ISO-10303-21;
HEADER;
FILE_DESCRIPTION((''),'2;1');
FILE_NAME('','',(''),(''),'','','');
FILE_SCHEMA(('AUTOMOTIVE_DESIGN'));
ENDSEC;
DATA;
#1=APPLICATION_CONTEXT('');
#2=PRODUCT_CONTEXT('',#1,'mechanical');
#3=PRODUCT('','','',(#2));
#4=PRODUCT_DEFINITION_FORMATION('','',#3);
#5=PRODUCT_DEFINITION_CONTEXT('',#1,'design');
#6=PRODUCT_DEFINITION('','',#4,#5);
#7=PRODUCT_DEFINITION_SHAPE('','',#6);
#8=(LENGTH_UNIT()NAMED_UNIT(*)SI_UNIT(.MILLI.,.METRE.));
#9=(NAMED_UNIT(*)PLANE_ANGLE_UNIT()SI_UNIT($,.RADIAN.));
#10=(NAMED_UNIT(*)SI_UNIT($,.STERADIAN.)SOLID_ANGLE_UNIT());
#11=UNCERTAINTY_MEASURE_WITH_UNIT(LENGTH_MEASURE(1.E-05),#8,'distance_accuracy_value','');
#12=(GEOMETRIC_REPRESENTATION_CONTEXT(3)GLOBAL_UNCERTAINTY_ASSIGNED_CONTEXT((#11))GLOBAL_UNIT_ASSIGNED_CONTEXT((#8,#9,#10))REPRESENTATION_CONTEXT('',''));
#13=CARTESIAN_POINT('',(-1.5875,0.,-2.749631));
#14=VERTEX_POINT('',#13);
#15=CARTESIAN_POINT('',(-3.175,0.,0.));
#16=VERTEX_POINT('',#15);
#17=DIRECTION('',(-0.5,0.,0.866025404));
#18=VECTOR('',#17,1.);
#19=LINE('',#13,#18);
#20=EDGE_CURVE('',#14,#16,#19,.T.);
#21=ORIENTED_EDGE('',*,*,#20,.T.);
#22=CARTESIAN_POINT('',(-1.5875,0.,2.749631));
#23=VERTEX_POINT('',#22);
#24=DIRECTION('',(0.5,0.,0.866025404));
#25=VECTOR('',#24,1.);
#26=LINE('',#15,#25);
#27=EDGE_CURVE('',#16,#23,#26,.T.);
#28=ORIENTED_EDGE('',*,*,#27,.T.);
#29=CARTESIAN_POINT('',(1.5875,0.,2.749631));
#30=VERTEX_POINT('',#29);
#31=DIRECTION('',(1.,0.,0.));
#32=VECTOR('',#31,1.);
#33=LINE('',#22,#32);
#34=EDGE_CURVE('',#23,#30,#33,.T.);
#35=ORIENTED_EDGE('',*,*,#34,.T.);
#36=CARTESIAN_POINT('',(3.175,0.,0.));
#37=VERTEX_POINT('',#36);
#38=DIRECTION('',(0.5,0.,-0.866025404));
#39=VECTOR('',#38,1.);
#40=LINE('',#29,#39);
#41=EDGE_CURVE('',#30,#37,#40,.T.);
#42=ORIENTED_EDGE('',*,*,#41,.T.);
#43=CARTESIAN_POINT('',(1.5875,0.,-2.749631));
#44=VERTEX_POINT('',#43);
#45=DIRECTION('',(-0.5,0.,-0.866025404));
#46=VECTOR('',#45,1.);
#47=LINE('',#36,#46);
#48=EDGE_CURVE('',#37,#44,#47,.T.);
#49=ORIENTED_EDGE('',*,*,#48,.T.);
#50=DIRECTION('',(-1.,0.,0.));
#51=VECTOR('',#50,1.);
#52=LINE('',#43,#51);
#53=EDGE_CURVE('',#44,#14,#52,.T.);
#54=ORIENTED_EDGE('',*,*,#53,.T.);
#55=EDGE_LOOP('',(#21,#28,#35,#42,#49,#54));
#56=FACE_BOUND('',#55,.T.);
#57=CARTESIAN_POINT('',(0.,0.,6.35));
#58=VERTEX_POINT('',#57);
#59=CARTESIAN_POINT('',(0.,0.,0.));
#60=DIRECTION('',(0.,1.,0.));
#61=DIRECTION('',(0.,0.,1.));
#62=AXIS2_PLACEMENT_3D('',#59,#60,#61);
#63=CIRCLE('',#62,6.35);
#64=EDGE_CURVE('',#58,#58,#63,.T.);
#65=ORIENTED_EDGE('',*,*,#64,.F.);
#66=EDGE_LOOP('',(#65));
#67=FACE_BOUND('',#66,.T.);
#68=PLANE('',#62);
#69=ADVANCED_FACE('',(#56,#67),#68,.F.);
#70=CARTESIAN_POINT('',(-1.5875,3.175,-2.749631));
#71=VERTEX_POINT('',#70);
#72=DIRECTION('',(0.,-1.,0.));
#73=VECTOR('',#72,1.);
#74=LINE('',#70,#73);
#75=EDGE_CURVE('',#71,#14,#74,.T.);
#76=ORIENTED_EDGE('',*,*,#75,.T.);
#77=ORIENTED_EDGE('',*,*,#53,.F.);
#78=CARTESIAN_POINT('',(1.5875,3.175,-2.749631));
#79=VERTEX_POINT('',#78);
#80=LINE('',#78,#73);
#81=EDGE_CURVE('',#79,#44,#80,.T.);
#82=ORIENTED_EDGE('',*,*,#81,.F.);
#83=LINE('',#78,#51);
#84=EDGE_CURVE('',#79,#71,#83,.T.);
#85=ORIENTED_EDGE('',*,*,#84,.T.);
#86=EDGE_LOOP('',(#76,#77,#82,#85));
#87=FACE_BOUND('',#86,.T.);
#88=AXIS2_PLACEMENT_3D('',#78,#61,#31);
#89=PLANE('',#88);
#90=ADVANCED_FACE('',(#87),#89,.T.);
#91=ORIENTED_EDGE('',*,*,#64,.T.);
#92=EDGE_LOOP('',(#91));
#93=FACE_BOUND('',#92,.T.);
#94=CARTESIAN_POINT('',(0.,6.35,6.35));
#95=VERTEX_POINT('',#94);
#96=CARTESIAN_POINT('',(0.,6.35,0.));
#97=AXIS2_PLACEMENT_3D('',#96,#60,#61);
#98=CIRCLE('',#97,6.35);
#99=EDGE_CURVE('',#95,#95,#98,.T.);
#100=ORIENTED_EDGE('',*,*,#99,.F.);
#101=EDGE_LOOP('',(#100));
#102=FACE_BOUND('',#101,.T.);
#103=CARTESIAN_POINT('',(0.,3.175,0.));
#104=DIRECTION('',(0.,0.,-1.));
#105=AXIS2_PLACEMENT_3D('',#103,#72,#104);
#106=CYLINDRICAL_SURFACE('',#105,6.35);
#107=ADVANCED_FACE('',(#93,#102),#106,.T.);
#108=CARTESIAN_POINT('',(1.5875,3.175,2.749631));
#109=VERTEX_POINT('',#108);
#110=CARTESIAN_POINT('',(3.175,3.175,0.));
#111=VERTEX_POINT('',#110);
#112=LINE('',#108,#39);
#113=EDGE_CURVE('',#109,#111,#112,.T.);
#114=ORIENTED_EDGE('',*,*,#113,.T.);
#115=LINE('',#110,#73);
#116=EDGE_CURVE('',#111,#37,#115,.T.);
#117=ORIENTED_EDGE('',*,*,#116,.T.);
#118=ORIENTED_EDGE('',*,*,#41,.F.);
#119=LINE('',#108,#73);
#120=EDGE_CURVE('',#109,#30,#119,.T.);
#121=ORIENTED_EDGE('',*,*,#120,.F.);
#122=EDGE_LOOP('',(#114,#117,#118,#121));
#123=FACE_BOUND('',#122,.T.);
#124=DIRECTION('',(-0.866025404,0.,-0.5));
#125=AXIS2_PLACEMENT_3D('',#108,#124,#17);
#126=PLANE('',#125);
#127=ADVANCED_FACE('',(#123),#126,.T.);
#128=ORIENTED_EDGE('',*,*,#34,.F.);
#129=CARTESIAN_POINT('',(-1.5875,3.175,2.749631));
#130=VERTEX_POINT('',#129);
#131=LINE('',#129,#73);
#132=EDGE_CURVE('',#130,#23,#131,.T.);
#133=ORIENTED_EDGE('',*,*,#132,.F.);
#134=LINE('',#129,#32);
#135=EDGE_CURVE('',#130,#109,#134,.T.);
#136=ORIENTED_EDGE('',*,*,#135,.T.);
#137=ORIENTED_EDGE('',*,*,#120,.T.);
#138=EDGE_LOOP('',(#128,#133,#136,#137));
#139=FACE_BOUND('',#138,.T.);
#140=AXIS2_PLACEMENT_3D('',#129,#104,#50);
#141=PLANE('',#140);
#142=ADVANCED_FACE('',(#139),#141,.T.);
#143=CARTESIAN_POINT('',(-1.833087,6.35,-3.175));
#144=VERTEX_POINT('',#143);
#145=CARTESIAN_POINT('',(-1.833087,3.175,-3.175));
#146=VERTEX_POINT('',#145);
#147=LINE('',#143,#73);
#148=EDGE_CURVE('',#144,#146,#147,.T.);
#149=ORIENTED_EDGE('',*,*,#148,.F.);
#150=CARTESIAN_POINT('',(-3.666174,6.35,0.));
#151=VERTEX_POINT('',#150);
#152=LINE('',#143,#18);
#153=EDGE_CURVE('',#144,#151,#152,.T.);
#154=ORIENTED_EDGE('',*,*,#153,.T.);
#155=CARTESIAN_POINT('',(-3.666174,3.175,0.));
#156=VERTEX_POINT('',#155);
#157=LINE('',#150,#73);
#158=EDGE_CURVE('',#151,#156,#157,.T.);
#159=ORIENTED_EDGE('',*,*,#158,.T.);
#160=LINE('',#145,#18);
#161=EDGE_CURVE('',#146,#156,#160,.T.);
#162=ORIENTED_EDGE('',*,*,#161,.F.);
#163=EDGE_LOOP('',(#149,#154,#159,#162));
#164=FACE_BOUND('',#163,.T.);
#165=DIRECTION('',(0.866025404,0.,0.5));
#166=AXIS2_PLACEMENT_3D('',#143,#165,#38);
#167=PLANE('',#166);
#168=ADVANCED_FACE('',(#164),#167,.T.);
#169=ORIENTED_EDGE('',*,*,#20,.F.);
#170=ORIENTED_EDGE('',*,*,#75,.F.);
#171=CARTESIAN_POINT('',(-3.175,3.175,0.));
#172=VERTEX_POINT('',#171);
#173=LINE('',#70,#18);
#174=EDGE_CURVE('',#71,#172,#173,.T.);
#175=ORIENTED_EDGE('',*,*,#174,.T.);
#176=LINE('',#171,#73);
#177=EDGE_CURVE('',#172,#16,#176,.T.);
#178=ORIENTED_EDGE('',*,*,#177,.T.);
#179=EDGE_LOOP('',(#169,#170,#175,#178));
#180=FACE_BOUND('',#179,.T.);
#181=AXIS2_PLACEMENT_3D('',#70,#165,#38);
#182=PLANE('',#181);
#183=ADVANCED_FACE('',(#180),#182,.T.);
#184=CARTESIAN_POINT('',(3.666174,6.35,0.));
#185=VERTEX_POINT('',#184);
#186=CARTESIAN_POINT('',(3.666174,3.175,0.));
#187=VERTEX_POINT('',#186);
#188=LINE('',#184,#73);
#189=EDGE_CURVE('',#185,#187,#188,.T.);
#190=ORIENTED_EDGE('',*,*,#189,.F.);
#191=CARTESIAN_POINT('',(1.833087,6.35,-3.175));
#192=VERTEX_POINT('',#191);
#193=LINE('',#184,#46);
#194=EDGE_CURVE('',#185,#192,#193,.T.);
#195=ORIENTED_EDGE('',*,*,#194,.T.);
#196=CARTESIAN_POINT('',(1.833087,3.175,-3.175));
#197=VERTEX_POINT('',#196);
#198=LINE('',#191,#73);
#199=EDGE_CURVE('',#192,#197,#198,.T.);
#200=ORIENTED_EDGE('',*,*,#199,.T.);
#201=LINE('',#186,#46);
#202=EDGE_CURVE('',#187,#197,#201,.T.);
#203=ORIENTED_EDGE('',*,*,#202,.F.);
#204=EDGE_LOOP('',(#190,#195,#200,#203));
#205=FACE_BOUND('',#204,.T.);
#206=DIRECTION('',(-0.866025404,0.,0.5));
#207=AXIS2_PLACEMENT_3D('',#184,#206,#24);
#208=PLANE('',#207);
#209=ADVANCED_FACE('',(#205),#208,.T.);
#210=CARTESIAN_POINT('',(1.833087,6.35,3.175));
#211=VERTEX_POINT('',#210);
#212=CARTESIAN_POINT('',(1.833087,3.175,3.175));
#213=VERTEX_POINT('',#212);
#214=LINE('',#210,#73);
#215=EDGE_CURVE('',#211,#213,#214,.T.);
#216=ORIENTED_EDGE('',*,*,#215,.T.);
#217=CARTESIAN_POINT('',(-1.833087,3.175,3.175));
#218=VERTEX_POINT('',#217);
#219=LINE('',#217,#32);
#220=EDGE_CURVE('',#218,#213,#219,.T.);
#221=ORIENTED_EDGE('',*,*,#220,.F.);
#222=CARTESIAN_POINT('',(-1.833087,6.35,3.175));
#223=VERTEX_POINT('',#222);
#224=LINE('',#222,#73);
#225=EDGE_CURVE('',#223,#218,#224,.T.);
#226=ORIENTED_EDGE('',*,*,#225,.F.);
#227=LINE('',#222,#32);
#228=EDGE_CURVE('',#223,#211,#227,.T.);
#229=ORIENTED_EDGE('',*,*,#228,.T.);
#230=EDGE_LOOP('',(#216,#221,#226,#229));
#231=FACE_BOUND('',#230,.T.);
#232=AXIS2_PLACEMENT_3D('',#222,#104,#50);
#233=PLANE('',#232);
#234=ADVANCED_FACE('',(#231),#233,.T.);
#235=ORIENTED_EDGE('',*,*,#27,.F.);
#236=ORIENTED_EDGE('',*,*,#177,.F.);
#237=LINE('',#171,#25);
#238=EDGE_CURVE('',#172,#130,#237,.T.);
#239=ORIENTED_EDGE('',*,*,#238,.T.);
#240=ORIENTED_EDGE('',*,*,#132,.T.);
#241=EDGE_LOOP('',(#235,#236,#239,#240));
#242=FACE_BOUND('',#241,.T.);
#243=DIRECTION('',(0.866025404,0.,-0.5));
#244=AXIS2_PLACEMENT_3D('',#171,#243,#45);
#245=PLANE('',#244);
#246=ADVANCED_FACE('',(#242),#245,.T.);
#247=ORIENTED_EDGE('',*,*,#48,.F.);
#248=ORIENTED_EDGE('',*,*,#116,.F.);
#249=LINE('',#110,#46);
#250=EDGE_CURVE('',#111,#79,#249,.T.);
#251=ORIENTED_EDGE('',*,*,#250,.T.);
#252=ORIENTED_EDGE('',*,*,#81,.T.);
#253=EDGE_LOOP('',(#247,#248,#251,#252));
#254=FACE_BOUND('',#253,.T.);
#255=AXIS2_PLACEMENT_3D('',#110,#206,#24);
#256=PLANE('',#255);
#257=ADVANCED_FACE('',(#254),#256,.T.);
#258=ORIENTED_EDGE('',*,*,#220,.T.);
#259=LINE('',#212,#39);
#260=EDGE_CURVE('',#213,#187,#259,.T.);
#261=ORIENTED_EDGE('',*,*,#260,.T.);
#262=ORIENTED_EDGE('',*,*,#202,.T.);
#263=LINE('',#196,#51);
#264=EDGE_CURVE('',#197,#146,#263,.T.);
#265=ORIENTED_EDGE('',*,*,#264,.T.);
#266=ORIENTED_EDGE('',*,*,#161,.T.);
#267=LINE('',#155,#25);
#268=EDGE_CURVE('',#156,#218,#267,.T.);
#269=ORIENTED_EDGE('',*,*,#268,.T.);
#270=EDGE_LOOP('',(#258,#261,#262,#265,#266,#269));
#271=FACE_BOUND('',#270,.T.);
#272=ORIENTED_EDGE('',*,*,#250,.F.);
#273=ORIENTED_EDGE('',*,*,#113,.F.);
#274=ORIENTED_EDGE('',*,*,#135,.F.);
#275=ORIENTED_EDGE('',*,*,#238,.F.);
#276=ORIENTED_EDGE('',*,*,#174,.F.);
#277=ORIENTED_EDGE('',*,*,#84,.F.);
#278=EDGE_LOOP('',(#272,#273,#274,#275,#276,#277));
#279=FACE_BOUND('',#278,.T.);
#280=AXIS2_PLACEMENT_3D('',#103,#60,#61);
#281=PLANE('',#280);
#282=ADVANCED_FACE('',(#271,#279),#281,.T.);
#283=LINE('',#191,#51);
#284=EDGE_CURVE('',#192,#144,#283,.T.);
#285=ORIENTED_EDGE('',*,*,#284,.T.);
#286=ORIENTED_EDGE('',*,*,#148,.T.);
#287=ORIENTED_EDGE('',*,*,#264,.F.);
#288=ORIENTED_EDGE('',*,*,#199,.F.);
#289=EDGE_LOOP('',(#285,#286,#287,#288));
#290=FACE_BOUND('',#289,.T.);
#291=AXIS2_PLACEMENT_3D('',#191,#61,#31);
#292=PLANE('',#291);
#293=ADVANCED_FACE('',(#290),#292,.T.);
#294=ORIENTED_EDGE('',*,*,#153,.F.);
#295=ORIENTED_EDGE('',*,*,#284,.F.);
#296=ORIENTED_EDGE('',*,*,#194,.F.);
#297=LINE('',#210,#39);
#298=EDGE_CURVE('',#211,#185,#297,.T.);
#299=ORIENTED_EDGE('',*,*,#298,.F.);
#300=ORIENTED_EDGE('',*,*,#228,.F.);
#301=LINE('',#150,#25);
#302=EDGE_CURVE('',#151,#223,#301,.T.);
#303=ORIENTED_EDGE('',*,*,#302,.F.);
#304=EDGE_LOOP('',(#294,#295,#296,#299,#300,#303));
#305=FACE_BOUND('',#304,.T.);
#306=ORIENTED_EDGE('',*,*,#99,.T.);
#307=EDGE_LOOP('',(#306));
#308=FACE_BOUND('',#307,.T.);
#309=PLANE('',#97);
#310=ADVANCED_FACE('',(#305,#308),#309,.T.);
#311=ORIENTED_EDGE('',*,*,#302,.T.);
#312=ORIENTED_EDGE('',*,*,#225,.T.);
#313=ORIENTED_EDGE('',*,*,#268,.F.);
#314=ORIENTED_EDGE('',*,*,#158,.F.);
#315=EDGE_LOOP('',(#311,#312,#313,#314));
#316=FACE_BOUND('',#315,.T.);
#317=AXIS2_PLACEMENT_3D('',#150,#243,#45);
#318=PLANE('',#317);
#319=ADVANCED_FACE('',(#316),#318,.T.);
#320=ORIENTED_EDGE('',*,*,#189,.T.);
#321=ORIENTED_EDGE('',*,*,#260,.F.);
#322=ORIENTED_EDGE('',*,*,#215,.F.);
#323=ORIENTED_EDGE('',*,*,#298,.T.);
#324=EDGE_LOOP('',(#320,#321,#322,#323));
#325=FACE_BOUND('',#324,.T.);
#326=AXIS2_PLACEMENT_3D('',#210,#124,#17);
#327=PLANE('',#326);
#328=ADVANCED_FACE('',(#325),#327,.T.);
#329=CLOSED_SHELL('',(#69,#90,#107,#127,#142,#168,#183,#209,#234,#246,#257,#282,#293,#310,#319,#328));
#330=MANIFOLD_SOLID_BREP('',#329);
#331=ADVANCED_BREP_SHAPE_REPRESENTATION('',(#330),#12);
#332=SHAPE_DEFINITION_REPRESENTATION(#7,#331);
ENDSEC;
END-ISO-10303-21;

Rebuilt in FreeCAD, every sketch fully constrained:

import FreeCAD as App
import Part
import Sketcher
Q = App.Units.Quantity


def add_polygon(sketch, points):
    """Adds a closed chain of lines whose ends are joined by coincident constraints."""
    first, n = sketch.GeometryCount, len(points)
    for a, b in zip(points, points[1:] + points[:1]):
        sketch.addGeometry(Part.LineSegment(App.Vector(*a, 0), App.Vector(*b, 0)), False)
    for i in range(n):
        sketch.addConstraint(Sketcher.Constraint("Coincident", first + i, 2, first + (i + 1) % n, 1))

doc = App.newDocument("Part")
params = doc.addObject("Spreadsheet::Sheet", "Params")
for row, (alias, value) in enumerate([
    ("sketch1_diameter", "0.5 in"),
    ("sketch1_width", "0.125 in"),
    ("pad1_length", "0.125 in"),
    ("sketch2_diameter", "0.5 in"),
    ("pad2_length", "0.125 in"),
], start=1):
    params.set(f"A{row}", alias)
    params.set(f"B{row}", "=" + value)
    params.setAlias(f"B{row}", alias)

body = doc.addObject("PartDesign::Body", "Body")

# Sketch on XZ plane
sketch1 = body.newObject("Sketcher::SketchObject", "Sketch")
sketch1.AttachmentSupport = (doc.getObject("XZ_Plane"), [""])
sketch1.MapMode = "FlatFace"
sketch1.addGeometry(Part.Circle(App.Vector(0, 0, 0), App.Vector(0, 0, 1), 6.35), False)  # 0
add_polygon(sketch1, [(-1.5875, -2.749631), (1.5875, -2.749631), (3.175, 0), (1.5875, 2.749631), (-1.5875, 2.749631), (-3.175, 0)])  # lines 1-6
sketch1.addConstraint(Sketcher.Constraint("Horizontal", 1))
sketch1.addConstraint(Sketcher.Constraint("Horizontal", 4))
sketch1.addConstraint(Sketcher.Constraint("Coincident", 0, 3, -1, 1))
sketch1.addConstraint(Sketcher.Constraint("Symmetric", 1, 2, 4, 2, -1, 1))
sketch1.addConstraint(Sketcher.Constraint("Symmetric", 2, 2, 5, 2, -1, 1))
sketch1.addConstraint(Sketcher.Constraint("PointOnObject", 2, 2, -1))
sketch1.addConstraint(Sketcher.Constraint("Parallel", 3, 6))
sketch1.addConstraint(Sketcher.Constraint("Vertical", 1, 2, 3, 2))
sketch1.addConstraint(Sketcher.Constraint("Diameter", 0, Q("0.5 in")))
sketch1.addConstraint(Sketcher.Constraint("Angle", 2, Q("60 deg")))
sketch1.addConstraint(Sketcher.Constraint("DistanceX", 1, 1, 1, 2, Q("0.125 in")))
sketch1.addConstraint(Sketcher.Constraint("DistanceX", 5, 2, 2, 2, Q("0.25 in")))
sketch1.setExpression("Constraints[14]", "Params.sketch1_diameter")
sketch1.setExpression("Constraints[16]", "Params.sketch1_width")
pad1 = body.newObject("PartDesign::Pad", "Pad")
pad1.Profile = sketch1
pad1.setExpression("Length", "Params.pad1_length")
pad1.Reversed = True

# Sketch on XZ plane
sketch2 = body.newObject("Sketcher::SketchObject", "Sketch001")
sketch2.AttachmentSupport = (doc.getObject("XZ_Plane"), [""])
sketch2.MapMode = "FlatFace"
sketch2.AttachmentOffset = App.Placement(App.Vector(0, 0, -0.125 * 25.4), App.Rotation())
sketch2.addGeometry(Part.Circle(App.Vector(0, 0, 0), App.Vector(0, 0, 1), 6.35), False)  # 0
add_polygon(sketch2, [(-1.833087, -3.175), (1.833087, -3.175), (3.666174, 0), (1.833087, 3.175), (-1.833087, 3.175), (-3.666174, 0)])  # lines 1-6
sketch2.addConstraint(Sketcher.Constraint("Horizontal", 1))
sketch2.addConstraint(Sketcher.Constraint("Horizontal", 4))
sketch2.addConstraint(Sketcher.Constraint("Coincident", 0, 3, -1, 1))
sketch2.addConstraint(Sketcher.Constraint("Symmetric", 1, 2, 4, 2, -1, 1))
sketch2.addConstraint(Sketcher.Constraint("Symmetric", 2, 2, 5, 2, -1, 1))
sketch2.addConstraint(Sketcher.Constraint("PointOnObject", 2, 2, -1))
sketch2.addConstraint(Sketcher.Constraint("Parallel", 3, 6))
sketch2.addConstraint(Sketcher.Constraint("Vertical", 1, 2, 3, 2))
sketch2.addConstraint(Sketcher.Constraint("Diameter", 0, Q("0.5 in")))
sketch2.addConstraint(Sketcher.Constraint("Angle", 2, Q("60 deg")))
sketch2.addConstraint(Sketcher.Constraint("DistanceY", 1, 2, 3, 2, Q("0.25 in")))
sketch2.addConstraint(Sketcher.Constraint("DistanceX", 1, 1, 1, 2, 3.666174))
sketch2.setExpression("Constraints[14]", "Params.sketch2_diameter")
pad2 = body.newObject("PartDesign::Pad", "Pad001")
pad2.Profile = sketch2
pad2.setExpression("Length", "Params.pad2_length")
pad2.Reversed = True

doc.recompute()
